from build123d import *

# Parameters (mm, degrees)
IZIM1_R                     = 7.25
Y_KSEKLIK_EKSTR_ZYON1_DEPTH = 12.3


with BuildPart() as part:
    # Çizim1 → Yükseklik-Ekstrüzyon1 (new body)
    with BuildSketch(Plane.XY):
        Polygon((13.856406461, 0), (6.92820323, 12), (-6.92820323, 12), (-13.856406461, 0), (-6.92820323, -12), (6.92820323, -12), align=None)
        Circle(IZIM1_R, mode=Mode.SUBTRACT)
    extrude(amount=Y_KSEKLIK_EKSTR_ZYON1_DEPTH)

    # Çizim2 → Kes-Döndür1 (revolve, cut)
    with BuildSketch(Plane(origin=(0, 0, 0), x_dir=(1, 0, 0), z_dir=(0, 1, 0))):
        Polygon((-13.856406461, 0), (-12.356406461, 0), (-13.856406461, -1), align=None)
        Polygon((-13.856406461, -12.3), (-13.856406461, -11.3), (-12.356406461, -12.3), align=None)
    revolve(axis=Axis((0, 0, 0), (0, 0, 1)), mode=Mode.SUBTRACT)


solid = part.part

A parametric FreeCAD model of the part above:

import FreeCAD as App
import Part
import Sketcher

V = App.Vector
Q = App.Units.Quantity

doc = App.newDocument("Part")
body = doc.addObject("PartDesign::Body", "Body")

sketch1 = doc.addObject("Sketcher::SketchObject", "Sketch")
body.addObject(sketch1)
sketch1.AttachmentSupport = (doc.XY_Plane, [""])
sketch1.MapMode = "FlatFace"
sketch1.addGeometry(Part.LineSegment(V(14, 0, 0), V(7, 12, 0)), False)
sketch1.addGeometry(Part.LineSegment(V(7, 12, 0), V(-7, 12, 0)), False)
sketch1.addGeometry(Part.LineSegment(V(-7, 12, 0), V(-14, 0, 0)), False)
sketch1.addGeometry(Part.LineSegment(V(-14, 0, 0), V(-7, -12, 0)), False)
sketch1.addGeometry(Part.LineSegment(V(-7, -12, 0), V(7, -12, 0)), False)
sketch1.addGeometry(Part.LineSegment(V(7, -12, 0), V(14, 0, 0)), False)
sketch1.addGeometry(Part.Circle(V(0, 0, 0), V(0, 0, 1), 7), False)
sketch1.addConstraint(Sketcher.Constraint("Coincident", 0, 2, 1, 1))
sketch1.addConstraint(Sketcher.Constraint("Coincident", 1, 2, 2, 1))
sketch1.addConstraint(Sketcher.Constraint("Coincident", 2, 2, 3, 1))
sketch1.addConstraint(Sketcher.Constraint("Coincident", 3, 2, 4, 1))
sketch1.addConstraint(Sketcher.Constraint("Coincident", 4, 2, 5, 1))
sketch1.addConstraint(Sketcher.Constraint("Coincident", 5, 2, 0, 1))
sketch1.addConstraint(Sketcher.Constraint("Horizontal", 1))
sketch1.addConstraint(Sketcher.Constraint("Horizontal", 4))
sketch1.addConstraint(Sketcher.Constraint("Coincident", 6, 3, -1, 1))
sketch1.addConstraint(Sketcher.Constraint("Symmetric", 0, 2, 3, 2, -1, 1))
sketch1.addConstraint(Sketcher.Constraint("Symmetric", 2, 2, 5, 2, -1, 1))
sketch1.addConstraint(Sketcher.Constraint("PointOnObject", 2, 2, -1))
sketch1.addConstraint(Sketcher.Constraint("Parallel", 2, 5))
sketch1.addConstraint(Sketcher.Constraint("Vertical", 1, 2, 3, 2))
sketch1.addConstraint(Sketcher.Constraint("Diameter", 6, 14.5))
sketch1.addConstraint(Sketcher.Constraint("Angle", 0, Q("120 deg")))
sketch1.addConstraint(Sketcher.Constraint("DistanceY", -1, 1, 0, 2, 12.0))
sketch1.addConstraint(Sketcher.Constraint("DistanceX", 1, 2, 1, 1, 13.856406))
pad1 = doc.addObject("PartDesign::Pad", "Pad")
body.addObject(pad1)
pad1.Profile = sketch1
pad1.Length = 12.3

sketch2 = doc.addObject("Sketcher::SketchObject", "Sketch001")
body.addObject(sketch2)
sketch2.AttachmentSupport = (doc.XZ_Plane, [""])
sketch2.MapMode = "FlatFace"
sketch2.addGeometry(Part.LineSegment(V(-12.4, 0, 0), V(-13.9, 0, 0)), False)
sketch2.addGeometry(Part.LineSegment(V(-13.9, 0, 0), V(-13.9, 1, 0)), False)
sketch2.addGeometry(Part.LineSegment(V(-13.9, 1, 0), V(-12.4, 0, 0)), False)
sketch2.addGeometry(Part.LineSegment(V(-13.9, 11.3, 0), V(-13.9, 12.3, 0)), False)
sketch2.addGeometry(Part.LineSegment(V(-13.9, 12.3, 0), V(-12.4, 12.3, 0)), False)
sketch2.addGeometry(Part.LineSegment(V(-12.4, 12.3, 0), V(-13.9, 11.3, 0)), False)
sketch2.addConstraint(Sketcher.Constraint("Coincident", 0, 2, 1, 1))
sketch2.addConstraint(Sketcher.Constraint("Coincident", 1, 2, 2, 1))
sketch2.addConstraint(Sketcher.Constraint("Coincident", 2, 2, 0, 1))
sketch2.addConstraint(Sketcher.Constraint("Coincident", 3, 2, 4, 1))
sketch2.addConstraint(Sketcher.Constraint("Coincident", 4, 2, 5, 1))
sketch2.addConstraint(Sketcher.Constraint("Coincident", 5, 2, 3, 1))
sketch2.addConstraint(Sketcher.Constraint("Horizontal", 0))
sketch2.addConstraint(Sketcher.Constraint("Vertical", 1))
sketch2.addConstraint(Sketcher.Constraint("Vertical", 3))
sketch2.addConstraint(Sketcher.Constraint("Horizontal", 4))
sketch2.addConstraint(Sketcher.Constraint("PointOnObject", 0, 2, -1))
sketch2.addConstraint(Sketcher.Constraint("Vertical", 1, 2, 3, 2))
sketch2.addConstraint(Sketcher.Constraint("Vertical", 2, 2, 4, 2))
sketch2.addConstraint(Sketcher.Constraint("Equal", 1, 3))
sketch2.addConstraint(Sketcher.Constraint("DistanceY", 1, 1, 1, 2, 1.0))
sketch2.addConstraint(Sketcher.Constraint("DistanceX", 0, 2, 0, 1, 1.5))
sketch2.addConstraint(Sketcher.Constraint("DistanceY", -1, 1, 3, 2, 12.3))
sketch2.addConstraint(Sketcher.Constraint("DistanceX", 0, 2, -1, 1, 13.856406))
groove = doc.addObject("PartDesign::Groove", "Groove")
body.addObject(groove)
groove.Profile = sketch2
groove.ReferenceAxis = (sketch2, ["V_Axis"])
groove.Angle = 360

doc.recompute()
